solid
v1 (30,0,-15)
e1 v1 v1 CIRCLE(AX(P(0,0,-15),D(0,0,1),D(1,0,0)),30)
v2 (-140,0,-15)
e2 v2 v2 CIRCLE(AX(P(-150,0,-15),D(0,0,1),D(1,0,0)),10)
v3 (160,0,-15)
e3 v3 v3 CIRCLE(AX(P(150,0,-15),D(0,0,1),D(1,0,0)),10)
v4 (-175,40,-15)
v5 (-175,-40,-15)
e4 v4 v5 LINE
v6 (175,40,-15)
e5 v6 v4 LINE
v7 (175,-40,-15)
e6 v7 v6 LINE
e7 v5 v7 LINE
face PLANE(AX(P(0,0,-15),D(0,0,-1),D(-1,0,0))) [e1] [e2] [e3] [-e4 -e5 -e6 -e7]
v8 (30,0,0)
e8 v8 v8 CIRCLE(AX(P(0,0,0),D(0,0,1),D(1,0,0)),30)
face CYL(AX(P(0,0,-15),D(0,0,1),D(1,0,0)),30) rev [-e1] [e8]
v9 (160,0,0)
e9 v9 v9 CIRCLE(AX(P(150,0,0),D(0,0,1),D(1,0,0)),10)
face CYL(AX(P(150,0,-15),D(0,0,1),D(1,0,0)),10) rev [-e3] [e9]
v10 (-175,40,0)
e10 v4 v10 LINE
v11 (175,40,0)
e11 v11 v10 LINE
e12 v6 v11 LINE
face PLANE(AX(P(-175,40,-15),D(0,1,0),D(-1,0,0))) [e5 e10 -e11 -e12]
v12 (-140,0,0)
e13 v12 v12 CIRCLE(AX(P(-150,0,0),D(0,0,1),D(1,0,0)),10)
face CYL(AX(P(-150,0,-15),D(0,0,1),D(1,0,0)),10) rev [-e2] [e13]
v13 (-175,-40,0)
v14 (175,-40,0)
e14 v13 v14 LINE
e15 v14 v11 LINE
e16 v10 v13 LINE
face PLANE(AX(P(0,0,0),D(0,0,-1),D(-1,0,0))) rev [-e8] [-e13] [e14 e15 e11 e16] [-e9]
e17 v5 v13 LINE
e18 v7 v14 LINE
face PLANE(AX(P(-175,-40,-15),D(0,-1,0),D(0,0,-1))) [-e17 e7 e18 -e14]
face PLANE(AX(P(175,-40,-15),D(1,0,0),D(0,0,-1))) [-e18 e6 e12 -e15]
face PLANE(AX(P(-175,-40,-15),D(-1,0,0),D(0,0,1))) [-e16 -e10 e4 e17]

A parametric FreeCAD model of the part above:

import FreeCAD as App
import Part
import Sketcher

V = App.Vector

doc = App.newDocument("Part")
body = doc.addObject("PartDesign::Body", "Body")

sketch1 = doc.addObject("Sketcher::SketchObject", "Sketch")
body.addObject(sketch1)
sketch1.AttachmentSupport = (doc.XY_Plane, [""])
sketch1.MapMode = "FlatFace"
sketch1.addGeometry([
    Part.LineSegment(V(-175, 40, 0), V(-175, -40, 0)),
    Part.LineSegment(V(-175, -40, 0), V(175, -40, 0)),
    Part.LineSegment(V(175, -40, 0), V(175, 40, 0)),
    Part.LineSegment(V(175, 40, 0), V(-175, 40, 0)),
    Part.Circle(V(-150, 0, 0), V(0, 0, 1), 10),
    Part.Circle(V(0, 0, 0), V(0, 0, 1), 30),
    Part.Circle(V(150, 0, 0), V(0, 0, 1), 10),
], False)
sketch1.addConstraint([
    Sketcher.Constraint("Coincident", 0, 2, 1, 1),
    Sketcher.Constraint("Coincident", 1, 2, 2, 1),
    Sketcher.Constraint("Coincident", 2, 2, 3, 1),
    Sketcher.Constraint("Coincident", 3, 2, 0, 1),
    Sketcher.Constraint("Vertical", 0),
    Sketcher.Constraint("Horizontal", 1),
    Sketcher.Constraint("Vertical", 2),
    Sketcher.Constraint("Horizontal", 3),
    Sketcher.Constraint("Coincident", 5, 3, -1, 1),
    Sketcher.Constraint("Equal", 4, 6),
    Sketcher.Constraint("Symmetric", 4, 3, 6, 3, -1, 1),
    Sketcher.Constraint("Symmetric", 0, 2, 2, 2, -1, 1),
    Sketcher.Constraint("PointOnObject", 4, 3, -1),
    Sketcher.Constraint("Diameter", 4, 20.0),
    Sketcher.Constraint("Diameter", 5, 60.0),
    Sketcher.Constraint("DistanceX", 1, 1, 1, 2, 350.0),
    Sketcher.Constraint("DistanceY", 0, 2, 0, 1, 80.0),
    Sketcher.Constraint("DistanceX", 4, 3, -1, 1, 150.0),
])
pad1 = doc.addObject("PartDesign::Pad", "Pad")
body.addObject(pad1)
pad1.Profile = sketch1
pad1.Length = 15
pad1.Reversed = True

doc.recompute()
